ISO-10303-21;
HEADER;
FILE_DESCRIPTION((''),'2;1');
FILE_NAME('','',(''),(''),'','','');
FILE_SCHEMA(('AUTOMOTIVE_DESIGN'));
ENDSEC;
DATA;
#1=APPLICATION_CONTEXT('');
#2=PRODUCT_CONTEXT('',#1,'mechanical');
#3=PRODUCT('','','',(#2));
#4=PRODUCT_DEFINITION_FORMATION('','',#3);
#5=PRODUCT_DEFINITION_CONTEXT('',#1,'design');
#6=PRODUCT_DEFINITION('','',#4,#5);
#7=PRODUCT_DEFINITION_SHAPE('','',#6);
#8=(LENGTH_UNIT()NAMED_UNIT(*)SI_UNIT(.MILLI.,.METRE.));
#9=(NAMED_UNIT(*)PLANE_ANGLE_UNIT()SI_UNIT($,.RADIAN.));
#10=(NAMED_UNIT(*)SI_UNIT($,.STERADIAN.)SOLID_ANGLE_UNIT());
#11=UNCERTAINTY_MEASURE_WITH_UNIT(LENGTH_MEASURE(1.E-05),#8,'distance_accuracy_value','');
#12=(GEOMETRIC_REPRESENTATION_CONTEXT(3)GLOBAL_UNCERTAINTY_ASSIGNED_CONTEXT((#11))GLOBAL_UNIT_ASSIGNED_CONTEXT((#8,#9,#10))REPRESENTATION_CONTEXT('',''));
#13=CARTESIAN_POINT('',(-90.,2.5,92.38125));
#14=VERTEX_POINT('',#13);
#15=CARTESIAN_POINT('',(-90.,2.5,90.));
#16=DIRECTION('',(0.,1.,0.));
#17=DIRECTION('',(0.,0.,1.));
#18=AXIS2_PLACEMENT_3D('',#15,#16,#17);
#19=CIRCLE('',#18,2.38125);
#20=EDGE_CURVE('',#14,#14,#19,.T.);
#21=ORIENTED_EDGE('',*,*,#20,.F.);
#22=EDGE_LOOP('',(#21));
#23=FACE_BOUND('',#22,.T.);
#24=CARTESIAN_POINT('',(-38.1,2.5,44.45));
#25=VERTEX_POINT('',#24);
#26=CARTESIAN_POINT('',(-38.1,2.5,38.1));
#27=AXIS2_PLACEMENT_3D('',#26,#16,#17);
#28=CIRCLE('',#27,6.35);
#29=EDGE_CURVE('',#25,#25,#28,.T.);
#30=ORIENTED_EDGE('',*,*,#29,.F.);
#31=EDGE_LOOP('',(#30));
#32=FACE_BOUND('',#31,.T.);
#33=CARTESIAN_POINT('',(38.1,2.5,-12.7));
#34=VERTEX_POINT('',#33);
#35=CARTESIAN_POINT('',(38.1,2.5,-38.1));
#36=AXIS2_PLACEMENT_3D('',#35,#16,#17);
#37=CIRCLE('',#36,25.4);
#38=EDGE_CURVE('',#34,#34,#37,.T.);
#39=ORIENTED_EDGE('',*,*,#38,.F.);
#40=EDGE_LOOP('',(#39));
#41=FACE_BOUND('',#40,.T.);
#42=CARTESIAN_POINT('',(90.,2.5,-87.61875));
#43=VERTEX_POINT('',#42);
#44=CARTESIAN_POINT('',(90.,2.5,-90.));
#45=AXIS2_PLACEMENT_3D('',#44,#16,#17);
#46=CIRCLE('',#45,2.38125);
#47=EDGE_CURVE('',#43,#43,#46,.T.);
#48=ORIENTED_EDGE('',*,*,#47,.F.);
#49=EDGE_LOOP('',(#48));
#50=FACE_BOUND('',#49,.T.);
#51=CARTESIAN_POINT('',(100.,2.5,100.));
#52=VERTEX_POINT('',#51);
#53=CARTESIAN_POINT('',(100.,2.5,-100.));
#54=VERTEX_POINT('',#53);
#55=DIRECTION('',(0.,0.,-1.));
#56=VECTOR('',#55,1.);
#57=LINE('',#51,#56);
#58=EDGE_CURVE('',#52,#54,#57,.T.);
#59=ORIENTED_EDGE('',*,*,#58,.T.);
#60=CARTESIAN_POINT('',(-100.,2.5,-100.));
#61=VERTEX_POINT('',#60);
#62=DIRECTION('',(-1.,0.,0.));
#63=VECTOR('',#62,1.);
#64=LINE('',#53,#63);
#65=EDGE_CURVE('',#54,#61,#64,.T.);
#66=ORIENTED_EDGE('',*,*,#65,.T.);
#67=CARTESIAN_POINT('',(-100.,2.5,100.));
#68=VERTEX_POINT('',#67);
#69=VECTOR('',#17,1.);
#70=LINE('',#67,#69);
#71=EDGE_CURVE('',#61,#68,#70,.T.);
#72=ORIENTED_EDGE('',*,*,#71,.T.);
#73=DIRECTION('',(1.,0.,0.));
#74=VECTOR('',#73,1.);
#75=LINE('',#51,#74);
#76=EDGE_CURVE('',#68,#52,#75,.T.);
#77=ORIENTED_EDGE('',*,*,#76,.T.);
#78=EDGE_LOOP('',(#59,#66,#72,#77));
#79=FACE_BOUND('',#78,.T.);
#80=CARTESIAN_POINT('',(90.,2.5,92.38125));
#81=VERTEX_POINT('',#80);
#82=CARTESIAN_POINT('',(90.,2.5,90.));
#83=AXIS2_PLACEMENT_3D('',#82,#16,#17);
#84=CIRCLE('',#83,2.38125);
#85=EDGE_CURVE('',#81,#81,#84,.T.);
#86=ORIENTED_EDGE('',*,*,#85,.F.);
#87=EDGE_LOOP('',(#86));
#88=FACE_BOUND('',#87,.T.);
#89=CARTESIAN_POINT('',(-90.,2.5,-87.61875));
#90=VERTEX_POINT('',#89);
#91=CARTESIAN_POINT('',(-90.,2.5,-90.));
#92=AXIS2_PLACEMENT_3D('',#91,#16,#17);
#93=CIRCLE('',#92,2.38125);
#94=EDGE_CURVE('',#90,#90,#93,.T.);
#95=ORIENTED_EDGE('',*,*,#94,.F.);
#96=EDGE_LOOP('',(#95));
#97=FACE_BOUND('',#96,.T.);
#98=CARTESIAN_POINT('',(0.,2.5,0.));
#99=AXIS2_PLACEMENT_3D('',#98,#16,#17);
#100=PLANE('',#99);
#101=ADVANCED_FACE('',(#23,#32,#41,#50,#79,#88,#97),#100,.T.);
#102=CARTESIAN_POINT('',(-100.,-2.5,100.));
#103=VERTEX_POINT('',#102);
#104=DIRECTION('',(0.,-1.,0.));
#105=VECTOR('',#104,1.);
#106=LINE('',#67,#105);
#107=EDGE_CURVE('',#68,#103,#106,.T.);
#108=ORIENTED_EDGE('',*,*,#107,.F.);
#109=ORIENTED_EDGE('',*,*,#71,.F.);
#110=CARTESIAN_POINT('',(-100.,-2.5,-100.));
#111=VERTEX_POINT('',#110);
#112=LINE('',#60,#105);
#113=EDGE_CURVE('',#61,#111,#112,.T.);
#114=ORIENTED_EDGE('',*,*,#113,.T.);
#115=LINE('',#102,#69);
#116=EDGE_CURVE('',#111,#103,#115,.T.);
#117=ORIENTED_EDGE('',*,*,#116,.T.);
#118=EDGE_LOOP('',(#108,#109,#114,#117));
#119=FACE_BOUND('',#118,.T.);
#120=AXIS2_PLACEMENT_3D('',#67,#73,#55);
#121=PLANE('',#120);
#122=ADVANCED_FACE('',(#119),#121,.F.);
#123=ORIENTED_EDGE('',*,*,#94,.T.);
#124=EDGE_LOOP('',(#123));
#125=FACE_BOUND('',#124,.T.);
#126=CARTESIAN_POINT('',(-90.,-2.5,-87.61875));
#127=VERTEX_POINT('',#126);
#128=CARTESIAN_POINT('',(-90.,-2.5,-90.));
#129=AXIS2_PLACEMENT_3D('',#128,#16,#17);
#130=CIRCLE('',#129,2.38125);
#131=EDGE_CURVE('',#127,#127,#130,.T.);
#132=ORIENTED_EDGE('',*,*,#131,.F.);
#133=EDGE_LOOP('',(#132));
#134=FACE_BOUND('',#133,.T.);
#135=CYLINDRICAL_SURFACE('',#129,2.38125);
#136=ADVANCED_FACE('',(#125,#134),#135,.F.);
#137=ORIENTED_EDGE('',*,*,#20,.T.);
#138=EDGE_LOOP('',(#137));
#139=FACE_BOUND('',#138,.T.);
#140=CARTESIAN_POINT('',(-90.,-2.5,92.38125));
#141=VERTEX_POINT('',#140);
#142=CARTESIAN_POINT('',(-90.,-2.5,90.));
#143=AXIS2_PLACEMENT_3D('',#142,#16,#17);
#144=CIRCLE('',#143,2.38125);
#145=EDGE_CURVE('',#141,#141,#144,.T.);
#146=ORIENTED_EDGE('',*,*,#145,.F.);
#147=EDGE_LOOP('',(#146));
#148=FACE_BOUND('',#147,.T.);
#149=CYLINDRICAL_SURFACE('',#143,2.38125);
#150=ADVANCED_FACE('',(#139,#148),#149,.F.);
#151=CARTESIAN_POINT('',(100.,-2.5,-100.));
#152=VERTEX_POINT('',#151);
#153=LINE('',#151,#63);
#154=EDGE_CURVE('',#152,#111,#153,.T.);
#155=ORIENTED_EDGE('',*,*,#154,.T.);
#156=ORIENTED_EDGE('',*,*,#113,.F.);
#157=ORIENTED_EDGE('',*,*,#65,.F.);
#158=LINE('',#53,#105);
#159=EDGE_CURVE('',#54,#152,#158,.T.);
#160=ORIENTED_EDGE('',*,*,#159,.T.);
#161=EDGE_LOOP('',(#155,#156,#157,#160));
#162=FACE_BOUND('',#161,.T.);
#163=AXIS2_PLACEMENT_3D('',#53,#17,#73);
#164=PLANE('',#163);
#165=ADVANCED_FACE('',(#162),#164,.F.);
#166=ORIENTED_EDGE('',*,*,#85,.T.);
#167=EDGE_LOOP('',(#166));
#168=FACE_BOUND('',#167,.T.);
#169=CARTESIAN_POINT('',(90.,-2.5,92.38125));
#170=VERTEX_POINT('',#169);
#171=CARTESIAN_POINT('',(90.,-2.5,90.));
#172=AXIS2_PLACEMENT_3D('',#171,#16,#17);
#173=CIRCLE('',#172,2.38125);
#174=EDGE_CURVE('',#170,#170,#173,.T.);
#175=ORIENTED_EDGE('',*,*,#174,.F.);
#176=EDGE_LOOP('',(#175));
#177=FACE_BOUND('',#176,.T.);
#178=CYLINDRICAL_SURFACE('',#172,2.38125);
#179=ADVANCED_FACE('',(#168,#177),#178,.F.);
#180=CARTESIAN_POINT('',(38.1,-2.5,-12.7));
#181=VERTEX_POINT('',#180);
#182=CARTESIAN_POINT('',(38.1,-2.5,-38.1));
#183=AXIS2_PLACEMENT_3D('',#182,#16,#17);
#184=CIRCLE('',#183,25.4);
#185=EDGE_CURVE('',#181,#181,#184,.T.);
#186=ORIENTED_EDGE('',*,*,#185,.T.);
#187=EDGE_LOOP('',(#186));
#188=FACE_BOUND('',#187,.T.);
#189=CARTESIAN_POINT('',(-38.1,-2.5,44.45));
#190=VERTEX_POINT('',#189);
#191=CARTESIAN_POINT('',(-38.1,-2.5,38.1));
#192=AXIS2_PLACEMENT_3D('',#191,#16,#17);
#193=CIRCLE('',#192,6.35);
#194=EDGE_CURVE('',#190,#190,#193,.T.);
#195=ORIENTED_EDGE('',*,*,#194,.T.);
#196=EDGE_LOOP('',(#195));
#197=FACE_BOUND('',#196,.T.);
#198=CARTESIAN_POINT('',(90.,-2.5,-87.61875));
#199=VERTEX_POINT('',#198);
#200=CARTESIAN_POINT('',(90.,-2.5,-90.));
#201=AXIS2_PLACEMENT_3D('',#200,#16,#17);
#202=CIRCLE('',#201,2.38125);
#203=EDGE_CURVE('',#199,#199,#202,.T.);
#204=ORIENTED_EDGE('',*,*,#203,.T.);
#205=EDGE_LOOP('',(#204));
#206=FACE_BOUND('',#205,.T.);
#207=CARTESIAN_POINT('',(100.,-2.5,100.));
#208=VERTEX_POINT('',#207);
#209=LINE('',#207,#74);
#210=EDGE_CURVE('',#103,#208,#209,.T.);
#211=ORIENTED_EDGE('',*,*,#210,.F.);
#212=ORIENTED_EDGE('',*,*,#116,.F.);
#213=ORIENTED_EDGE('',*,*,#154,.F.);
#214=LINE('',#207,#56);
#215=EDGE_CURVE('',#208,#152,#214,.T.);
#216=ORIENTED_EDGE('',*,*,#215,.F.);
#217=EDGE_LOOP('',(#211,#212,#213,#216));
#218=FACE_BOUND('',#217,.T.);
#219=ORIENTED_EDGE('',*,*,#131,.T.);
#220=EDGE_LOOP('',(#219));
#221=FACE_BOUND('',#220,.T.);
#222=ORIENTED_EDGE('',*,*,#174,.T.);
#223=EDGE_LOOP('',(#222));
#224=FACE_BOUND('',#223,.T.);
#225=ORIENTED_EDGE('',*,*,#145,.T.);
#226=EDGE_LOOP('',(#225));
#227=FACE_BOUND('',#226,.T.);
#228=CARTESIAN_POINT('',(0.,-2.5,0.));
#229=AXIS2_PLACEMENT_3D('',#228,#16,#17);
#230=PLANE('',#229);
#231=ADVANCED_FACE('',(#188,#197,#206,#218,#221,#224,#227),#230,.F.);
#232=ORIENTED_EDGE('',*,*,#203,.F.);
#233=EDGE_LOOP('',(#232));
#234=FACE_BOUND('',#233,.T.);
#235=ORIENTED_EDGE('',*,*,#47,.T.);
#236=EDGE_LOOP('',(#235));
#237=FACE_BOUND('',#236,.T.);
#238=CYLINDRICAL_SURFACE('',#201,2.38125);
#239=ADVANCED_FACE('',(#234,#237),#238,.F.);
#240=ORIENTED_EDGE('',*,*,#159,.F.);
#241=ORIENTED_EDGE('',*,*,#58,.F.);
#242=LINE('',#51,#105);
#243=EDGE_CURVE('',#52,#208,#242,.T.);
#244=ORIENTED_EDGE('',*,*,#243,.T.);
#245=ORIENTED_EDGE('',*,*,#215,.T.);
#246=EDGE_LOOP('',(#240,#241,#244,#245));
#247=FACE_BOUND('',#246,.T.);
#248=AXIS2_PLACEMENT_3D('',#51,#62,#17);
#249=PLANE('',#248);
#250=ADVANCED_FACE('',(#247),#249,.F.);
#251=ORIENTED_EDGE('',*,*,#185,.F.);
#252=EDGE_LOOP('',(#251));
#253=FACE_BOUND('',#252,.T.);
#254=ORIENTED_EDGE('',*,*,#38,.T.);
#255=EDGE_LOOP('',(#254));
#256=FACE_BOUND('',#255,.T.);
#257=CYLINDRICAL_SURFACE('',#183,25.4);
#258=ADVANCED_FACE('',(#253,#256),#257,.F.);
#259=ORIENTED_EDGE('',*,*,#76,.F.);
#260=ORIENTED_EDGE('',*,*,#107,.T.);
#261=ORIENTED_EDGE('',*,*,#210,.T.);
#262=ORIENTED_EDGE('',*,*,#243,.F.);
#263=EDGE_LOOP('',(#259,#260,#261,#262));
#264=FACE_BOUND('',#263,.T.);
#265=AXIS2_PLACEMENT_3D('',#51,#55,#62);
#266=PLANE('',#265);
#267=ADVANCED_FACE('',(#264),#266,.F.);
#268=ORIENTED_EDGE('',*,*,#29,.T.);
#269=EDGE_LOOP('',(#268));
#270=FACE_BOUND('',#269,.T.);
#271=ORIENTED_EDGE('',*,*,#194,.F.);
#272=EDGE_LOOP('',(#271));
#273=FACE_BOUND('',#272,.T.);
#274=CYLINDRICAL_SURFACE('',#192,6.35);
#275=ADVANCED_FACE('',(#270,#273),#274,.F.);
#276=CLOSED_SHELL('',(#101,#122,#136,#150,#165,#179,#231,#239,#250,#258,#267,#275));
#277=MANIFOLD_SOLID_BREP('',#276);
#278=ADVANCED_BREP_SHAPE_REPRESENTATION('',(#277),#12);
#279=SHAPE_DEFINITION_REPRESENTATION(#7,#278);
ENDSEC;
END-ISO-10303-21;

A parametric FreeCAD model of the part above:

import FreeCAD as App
import Part
import Sketcher

V = App.Vector
Q = App.Units.Quantity


def add_polygon(sketch, points):
    """Adds a closed chain of lines whose ends are joined by coincident constraints."""
    first, n = sketch.GeometryCount, len(points)
    for a, b in zip(points, points[1:] + points[:1]):
        sketch.addGeometry(Part.LineSegment(App.Vector(*a, 0), App.Vector(*b, 0)), False)
    for i in range(n):
        sketch.addConstraint(Sketcher.Constraint("Coincident", first + i, 2, first + (i + 1) % n, 1))

doc = App.newDocument("Part")
body = doc.addObject("PartDesign::Body", "Body")

sketch1 = body.newObject("Sketcher::SketchObject", "Sketch")
sketch1.AttachmentSupport = (doc.getObject("XZ_Plane"), [""])
sketch1.MapMode = "FlatFace"
add_polygon(sketch1, [(-100, -100), (-100, 100), (100, 100), (100, -100)])
sketch1.addConstraint([
    Sketcher.Constraint("Vertical", 0),
    Sketcher.Constraint("Horizontal", 1),
    Sketcher.Constraint("Vertical", 2),
    Sketcher.Constraint("Horizontal", 3),
    Sketcher.Constraint("Symmetric", 0, 2, 2, 2, -1, 1),
    Sketcher.Constraint("Equal", 3, 0),
    Sketcher.Constraint("DistanceX", 1, 1, 1, 2, Q("200 mm")),
])
pad1 = body.newObject("PartDesign::Pad", "Pad")
pad1.Profile = sketch1
pad1.Length = 5
pad1.Midplane = True

sketch2 = body.newObject("Sketcher::SketchObject", "Sketch001")
sketch2.AttachmentSupport = (doc.getObject("XZ_Plane"), [""])
sketch2.MapMode = "FlatFace"
sketch2.AttachmentOffset = App.Placement(V(0, 0, -2.5), App.Rotation())
sketch2.addGeometry([
    Part.Circle(V(-90, -90, 0), V(0, 0, 1), 2.4),
    Part.Circle(V(90, -90, 0), V(0, 0, 1), 2.4),
    Part.Circle(V(-90, 90, 0), V(0, 0, 1), 2.4),
    Part.Circle(V(90, 90, 0), V(0, 0, 1), 2.4),
], False)
sketch2.addConstraint([
    Sketcher.Constraint("Equal", 0, 1),
    Sketcher.Constraint("Equal", 1, 2),
    Sketcher.Constraint("Equal", 2, 3),
    Sketcher.Constraint("Symmetric", 1, 3, 2, 3, -1, 1),
    Sketcher.Constraint("Symmetric", 0, 3, 3, 3, -1, 1),
    Sketcher.Constraint("Symmetric", 0, 3, 1, 3, -2),
    Sketcher.Constraint("DistanceX", 0, 3, -1, 1, Q("90 mm")),
    Sketcher.Constraint("DistanceY", 0, 3, -1, 1, Q("90 mm")),
    Sketcher.Constraint("Diameter", 0, Q("4.7625 mm")),
])
pocket1 = body.newObject("PartDesign::Pocket", "Pocket")
pocket1.Profile = sketch2
pocket1.Length = 5
pocket1.Reversed = True

sketch3 = body.newObject("Sketcher::SketchObject", "Sketch002")
sketch3.AttachmentSupport = (doc.getObject("XZ_Plane"), [""])
sketch3.MapMode = "FlatFace"
sketch3.AttachmentOffset = App.Placement(V(0, 0, -2.5), App.Rotation())
sketch3.addGeometry(Part.Circle(V(-38, 38, 0), V(0, 0, 1), 6), False)
sketch3.addConstraint([
    Sketcher.Constraint("Diameter", 0, Q("12.7 mm")),
    Sketcher.Constraint("DistanceX", 0, 3, -1, 1, Q("38.1 mm")),
    Sketcher.Constraint("DistanceY", -1, 1, 0, 3, Q("38.1 mm")),
])
pocket2 = body.newObject("PartDesign::Pocket", "Pocket001")
pocket2.Profile = sketch3
pocket2.Length = 5
pocket2.Reversed = True

sketch4 = body.newObject("Sketcher::SketchObject", "Sketch003")
sketch4.AttachmentSupport = (doc.getObject("XZ_Plane"), [""])
sketch4.MapMode = "FlatFace"
sketch4.AttachmentOffset = App.Placement(V(0, 0, -2.5), App.Rotation())
sketch4.addGeometry(Part.Circle(V(38, -38, 0), V(0, 0, 1), 25), False)
sketch4.addConstraint([
    Sketcher.Constraint("Diameter", 0, Q("50.8 mm")),
    Sketcher.Constraint("DistanceX", -1, 1, 0, 3, Q("38.1 mm")),
    Sketcher.Constraint("DistanceY", 0, 3, -1, 1, Q("38.1 mm")),
])
pocket3 = body.newObject("PartDesign::Pocket", "Pocket002")
pocket3.Profile = sketch4
pocket3.Type = "ThroughAll"
pocket3.Reversed = True

doc.recompute()
